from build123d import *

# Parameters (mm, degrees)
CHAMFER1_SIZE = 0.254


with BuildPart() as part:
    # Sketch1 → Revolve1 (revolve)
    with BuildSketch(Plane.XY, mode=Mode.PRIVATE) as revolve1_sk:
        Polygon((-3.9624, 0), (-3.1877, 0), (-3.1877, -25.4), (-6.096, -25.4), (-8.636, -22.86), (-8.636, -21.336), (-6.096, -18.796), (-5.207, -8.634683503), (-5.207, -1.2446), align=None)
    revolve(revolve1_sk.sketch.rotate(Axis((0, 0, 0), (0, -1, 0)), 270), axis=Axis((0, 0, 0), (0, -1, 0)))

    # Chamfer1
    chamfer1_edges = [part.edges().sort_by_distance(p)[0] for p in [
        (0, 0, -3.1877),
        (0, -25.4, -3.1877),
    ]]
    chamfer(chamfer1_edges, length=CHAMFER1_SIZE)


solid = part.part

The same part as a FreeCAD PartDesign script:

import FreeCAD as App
import Part
import Sketcher

V = App.Vector
Q = App.Units.Quantity


def edges_at(feature, points):
    """Names of the edges that pass closest to the given points."""
    edges = feature.Shape.Edges
    near = lambda p: min(range(len(edges)), key=lambda i: edges[i].distToShape(Part.Vertex(*p))[0])
    return sorted({f"Edge{near(p) + 1}" for p in points})

doc = App.newDocument("Part")
params = doc.addObject("Spreadsheet::Sheet", "Params")
for row, (alias, value) in enumerate([
    ("sketch1_height", "1 in"),
    ("sketch1_height2", "0.06 in"),
    ("revolution_angle", "360 deg"),
    ("chamfer_size", "0.01 in"),
], start=1):
    params.set(f"A{row}", alias)
    params.set(f"B{row}", "=" + value)
    params.setAlias(f"B{row}", alias)

body = doc.addObject("PartDesign::Body", "Body")

sketch1 = body.newObject("Sketcher::SketchObject", "Sketch")
sketch1.AttachmentSupport = (doc.getObject("XY_Plane"), [""])
sketch1.MapMode = "FlatFace"
sketch1.addGeometry([
    Part.LineSegment(V(-3.1877, 0, 0), V(-3.9624, 0, 0)),
    Part.LineSegment(V(-3.9624, 0, 0), V(-5.207, -1.2446, 0)),
    Part.LineSegment(V(-5.207, -1.2446, 0), V(-5.207, -8.634684, 0)),
    Part.LineSegment(V(-5.207, -8.634684, 0), V(-6.096, -18.796, 0)),
    Part.LineSegment(V(-6.096, -18.796, 0), V(-8.636, -21.336, 0)),
    Part.LineSegment(V(-8.636, -21.336, 0), V(-8.636, -22.86, 0)),
    Part.LineSegment(V(-8.636, -22.86, 0), V(-6.096, -25.4, 0)),
    Part.LineSegment(V(-6.096, -25.4, 0), V(-3.1877, -25.4, 0)),
    Part.LineSegment(V(-3.1877, -25.4, 0), V(-3.1877, 0, 0)),
], False)
sketch1.addConstraint([
    Sketcher.Constraint("Coincident", 0, 2, 1, 1),
    Sketcher.Constraint("Coincident", 1, 2, 2, 1),
    Sketcher.Constraint("Coincident", 2, 2, 3, 1),
    Sketcher.Constraint("Coincident", 3, 2, 4, 1),
    Sketcher.Constraint("Coincident", 4, 2, 5, 1),
    Sketcher.Constraint("Coincident", 5, 2, 6, 1),
    Sketcher.Constraint("Coincident", 6, 2, 7, 1),
    Sketcher.Constraint("Coincident", 7, 2, 8, 1),
    Sketcher.Constraint("Coincident", 8, 2, 0, 1),
    Sketcher.Constraint("Horizontal", 0),
    Sketcher.Constraint("Vertical", 2),
    Sketcher.Constraint("Vertical", 5),
    Sketcher.Constraint("Horizontal", 7),
    Sketcher.Constraint("Vertical", 8),
    Sketcher.Constraint("PointOnObject", 0, 2, -1),
    Sketcher.Constraint("Parallel", 1, 4),
    Sketcher.Constraint("Perpendicular", 4, 6),
    Sketcher.Constraint("Vertical", 3, 2, 6, 2),
    Sketcher.Constraint("Equal", 4, 6),
    Sketcher.Constraint("DistanceY", 8, 1, 8, 2, Q("1 in")),
    Sketcher.Constraint("Angle", 3, Q("-95 deg")),
    Sketcher.Constraint("DistanceY", 5, 2, 5, 1, Q("0.06 in")),
    Sketcher.Constraint("DistanceY", 5, 2, -1, 1, Q("0.9 in")),
    Sketcher.Constraint("DistanceX", 3, 2, -1, 1, Q("0.24 in")),
    Sketcher.Constraint("DistanceX", 0, 2, 0, 1, Q("0.0305 in")),
    Sketcher.Constraint("DistanceX", 7, 1, 7, 2, Q("0.1145 in")),
    Sketcher.Constraint("DistanceX", 1, 2, -1, 1, Q("0.205 in")),
])
sketch1.setExpression("Constraints[19]", "Params.sketch1_height")
sketch1.setExpression("Constraints[21]", "Params.sketch1_height2")
revolution = body.newObject("PartDesign::Revolution", "Revolution")
revolution.Profile = sketch1
revolution.ReferenceAxis = (sketch1, ["V_Axis"])
revolution.setExpression("Angle", "Params.revolution_angle")
doc.recompute()

chamfer = body.newObject("PartDesign::Chamfer", "Chamfer")
chamfer.Base = (revolution, edges_at(revolution, [(0, 0, -3.188), (0, -25.4, -3.188)]))
chamfer.setExpression("Size", "Params.chamfer_size")

doc.recompute()
